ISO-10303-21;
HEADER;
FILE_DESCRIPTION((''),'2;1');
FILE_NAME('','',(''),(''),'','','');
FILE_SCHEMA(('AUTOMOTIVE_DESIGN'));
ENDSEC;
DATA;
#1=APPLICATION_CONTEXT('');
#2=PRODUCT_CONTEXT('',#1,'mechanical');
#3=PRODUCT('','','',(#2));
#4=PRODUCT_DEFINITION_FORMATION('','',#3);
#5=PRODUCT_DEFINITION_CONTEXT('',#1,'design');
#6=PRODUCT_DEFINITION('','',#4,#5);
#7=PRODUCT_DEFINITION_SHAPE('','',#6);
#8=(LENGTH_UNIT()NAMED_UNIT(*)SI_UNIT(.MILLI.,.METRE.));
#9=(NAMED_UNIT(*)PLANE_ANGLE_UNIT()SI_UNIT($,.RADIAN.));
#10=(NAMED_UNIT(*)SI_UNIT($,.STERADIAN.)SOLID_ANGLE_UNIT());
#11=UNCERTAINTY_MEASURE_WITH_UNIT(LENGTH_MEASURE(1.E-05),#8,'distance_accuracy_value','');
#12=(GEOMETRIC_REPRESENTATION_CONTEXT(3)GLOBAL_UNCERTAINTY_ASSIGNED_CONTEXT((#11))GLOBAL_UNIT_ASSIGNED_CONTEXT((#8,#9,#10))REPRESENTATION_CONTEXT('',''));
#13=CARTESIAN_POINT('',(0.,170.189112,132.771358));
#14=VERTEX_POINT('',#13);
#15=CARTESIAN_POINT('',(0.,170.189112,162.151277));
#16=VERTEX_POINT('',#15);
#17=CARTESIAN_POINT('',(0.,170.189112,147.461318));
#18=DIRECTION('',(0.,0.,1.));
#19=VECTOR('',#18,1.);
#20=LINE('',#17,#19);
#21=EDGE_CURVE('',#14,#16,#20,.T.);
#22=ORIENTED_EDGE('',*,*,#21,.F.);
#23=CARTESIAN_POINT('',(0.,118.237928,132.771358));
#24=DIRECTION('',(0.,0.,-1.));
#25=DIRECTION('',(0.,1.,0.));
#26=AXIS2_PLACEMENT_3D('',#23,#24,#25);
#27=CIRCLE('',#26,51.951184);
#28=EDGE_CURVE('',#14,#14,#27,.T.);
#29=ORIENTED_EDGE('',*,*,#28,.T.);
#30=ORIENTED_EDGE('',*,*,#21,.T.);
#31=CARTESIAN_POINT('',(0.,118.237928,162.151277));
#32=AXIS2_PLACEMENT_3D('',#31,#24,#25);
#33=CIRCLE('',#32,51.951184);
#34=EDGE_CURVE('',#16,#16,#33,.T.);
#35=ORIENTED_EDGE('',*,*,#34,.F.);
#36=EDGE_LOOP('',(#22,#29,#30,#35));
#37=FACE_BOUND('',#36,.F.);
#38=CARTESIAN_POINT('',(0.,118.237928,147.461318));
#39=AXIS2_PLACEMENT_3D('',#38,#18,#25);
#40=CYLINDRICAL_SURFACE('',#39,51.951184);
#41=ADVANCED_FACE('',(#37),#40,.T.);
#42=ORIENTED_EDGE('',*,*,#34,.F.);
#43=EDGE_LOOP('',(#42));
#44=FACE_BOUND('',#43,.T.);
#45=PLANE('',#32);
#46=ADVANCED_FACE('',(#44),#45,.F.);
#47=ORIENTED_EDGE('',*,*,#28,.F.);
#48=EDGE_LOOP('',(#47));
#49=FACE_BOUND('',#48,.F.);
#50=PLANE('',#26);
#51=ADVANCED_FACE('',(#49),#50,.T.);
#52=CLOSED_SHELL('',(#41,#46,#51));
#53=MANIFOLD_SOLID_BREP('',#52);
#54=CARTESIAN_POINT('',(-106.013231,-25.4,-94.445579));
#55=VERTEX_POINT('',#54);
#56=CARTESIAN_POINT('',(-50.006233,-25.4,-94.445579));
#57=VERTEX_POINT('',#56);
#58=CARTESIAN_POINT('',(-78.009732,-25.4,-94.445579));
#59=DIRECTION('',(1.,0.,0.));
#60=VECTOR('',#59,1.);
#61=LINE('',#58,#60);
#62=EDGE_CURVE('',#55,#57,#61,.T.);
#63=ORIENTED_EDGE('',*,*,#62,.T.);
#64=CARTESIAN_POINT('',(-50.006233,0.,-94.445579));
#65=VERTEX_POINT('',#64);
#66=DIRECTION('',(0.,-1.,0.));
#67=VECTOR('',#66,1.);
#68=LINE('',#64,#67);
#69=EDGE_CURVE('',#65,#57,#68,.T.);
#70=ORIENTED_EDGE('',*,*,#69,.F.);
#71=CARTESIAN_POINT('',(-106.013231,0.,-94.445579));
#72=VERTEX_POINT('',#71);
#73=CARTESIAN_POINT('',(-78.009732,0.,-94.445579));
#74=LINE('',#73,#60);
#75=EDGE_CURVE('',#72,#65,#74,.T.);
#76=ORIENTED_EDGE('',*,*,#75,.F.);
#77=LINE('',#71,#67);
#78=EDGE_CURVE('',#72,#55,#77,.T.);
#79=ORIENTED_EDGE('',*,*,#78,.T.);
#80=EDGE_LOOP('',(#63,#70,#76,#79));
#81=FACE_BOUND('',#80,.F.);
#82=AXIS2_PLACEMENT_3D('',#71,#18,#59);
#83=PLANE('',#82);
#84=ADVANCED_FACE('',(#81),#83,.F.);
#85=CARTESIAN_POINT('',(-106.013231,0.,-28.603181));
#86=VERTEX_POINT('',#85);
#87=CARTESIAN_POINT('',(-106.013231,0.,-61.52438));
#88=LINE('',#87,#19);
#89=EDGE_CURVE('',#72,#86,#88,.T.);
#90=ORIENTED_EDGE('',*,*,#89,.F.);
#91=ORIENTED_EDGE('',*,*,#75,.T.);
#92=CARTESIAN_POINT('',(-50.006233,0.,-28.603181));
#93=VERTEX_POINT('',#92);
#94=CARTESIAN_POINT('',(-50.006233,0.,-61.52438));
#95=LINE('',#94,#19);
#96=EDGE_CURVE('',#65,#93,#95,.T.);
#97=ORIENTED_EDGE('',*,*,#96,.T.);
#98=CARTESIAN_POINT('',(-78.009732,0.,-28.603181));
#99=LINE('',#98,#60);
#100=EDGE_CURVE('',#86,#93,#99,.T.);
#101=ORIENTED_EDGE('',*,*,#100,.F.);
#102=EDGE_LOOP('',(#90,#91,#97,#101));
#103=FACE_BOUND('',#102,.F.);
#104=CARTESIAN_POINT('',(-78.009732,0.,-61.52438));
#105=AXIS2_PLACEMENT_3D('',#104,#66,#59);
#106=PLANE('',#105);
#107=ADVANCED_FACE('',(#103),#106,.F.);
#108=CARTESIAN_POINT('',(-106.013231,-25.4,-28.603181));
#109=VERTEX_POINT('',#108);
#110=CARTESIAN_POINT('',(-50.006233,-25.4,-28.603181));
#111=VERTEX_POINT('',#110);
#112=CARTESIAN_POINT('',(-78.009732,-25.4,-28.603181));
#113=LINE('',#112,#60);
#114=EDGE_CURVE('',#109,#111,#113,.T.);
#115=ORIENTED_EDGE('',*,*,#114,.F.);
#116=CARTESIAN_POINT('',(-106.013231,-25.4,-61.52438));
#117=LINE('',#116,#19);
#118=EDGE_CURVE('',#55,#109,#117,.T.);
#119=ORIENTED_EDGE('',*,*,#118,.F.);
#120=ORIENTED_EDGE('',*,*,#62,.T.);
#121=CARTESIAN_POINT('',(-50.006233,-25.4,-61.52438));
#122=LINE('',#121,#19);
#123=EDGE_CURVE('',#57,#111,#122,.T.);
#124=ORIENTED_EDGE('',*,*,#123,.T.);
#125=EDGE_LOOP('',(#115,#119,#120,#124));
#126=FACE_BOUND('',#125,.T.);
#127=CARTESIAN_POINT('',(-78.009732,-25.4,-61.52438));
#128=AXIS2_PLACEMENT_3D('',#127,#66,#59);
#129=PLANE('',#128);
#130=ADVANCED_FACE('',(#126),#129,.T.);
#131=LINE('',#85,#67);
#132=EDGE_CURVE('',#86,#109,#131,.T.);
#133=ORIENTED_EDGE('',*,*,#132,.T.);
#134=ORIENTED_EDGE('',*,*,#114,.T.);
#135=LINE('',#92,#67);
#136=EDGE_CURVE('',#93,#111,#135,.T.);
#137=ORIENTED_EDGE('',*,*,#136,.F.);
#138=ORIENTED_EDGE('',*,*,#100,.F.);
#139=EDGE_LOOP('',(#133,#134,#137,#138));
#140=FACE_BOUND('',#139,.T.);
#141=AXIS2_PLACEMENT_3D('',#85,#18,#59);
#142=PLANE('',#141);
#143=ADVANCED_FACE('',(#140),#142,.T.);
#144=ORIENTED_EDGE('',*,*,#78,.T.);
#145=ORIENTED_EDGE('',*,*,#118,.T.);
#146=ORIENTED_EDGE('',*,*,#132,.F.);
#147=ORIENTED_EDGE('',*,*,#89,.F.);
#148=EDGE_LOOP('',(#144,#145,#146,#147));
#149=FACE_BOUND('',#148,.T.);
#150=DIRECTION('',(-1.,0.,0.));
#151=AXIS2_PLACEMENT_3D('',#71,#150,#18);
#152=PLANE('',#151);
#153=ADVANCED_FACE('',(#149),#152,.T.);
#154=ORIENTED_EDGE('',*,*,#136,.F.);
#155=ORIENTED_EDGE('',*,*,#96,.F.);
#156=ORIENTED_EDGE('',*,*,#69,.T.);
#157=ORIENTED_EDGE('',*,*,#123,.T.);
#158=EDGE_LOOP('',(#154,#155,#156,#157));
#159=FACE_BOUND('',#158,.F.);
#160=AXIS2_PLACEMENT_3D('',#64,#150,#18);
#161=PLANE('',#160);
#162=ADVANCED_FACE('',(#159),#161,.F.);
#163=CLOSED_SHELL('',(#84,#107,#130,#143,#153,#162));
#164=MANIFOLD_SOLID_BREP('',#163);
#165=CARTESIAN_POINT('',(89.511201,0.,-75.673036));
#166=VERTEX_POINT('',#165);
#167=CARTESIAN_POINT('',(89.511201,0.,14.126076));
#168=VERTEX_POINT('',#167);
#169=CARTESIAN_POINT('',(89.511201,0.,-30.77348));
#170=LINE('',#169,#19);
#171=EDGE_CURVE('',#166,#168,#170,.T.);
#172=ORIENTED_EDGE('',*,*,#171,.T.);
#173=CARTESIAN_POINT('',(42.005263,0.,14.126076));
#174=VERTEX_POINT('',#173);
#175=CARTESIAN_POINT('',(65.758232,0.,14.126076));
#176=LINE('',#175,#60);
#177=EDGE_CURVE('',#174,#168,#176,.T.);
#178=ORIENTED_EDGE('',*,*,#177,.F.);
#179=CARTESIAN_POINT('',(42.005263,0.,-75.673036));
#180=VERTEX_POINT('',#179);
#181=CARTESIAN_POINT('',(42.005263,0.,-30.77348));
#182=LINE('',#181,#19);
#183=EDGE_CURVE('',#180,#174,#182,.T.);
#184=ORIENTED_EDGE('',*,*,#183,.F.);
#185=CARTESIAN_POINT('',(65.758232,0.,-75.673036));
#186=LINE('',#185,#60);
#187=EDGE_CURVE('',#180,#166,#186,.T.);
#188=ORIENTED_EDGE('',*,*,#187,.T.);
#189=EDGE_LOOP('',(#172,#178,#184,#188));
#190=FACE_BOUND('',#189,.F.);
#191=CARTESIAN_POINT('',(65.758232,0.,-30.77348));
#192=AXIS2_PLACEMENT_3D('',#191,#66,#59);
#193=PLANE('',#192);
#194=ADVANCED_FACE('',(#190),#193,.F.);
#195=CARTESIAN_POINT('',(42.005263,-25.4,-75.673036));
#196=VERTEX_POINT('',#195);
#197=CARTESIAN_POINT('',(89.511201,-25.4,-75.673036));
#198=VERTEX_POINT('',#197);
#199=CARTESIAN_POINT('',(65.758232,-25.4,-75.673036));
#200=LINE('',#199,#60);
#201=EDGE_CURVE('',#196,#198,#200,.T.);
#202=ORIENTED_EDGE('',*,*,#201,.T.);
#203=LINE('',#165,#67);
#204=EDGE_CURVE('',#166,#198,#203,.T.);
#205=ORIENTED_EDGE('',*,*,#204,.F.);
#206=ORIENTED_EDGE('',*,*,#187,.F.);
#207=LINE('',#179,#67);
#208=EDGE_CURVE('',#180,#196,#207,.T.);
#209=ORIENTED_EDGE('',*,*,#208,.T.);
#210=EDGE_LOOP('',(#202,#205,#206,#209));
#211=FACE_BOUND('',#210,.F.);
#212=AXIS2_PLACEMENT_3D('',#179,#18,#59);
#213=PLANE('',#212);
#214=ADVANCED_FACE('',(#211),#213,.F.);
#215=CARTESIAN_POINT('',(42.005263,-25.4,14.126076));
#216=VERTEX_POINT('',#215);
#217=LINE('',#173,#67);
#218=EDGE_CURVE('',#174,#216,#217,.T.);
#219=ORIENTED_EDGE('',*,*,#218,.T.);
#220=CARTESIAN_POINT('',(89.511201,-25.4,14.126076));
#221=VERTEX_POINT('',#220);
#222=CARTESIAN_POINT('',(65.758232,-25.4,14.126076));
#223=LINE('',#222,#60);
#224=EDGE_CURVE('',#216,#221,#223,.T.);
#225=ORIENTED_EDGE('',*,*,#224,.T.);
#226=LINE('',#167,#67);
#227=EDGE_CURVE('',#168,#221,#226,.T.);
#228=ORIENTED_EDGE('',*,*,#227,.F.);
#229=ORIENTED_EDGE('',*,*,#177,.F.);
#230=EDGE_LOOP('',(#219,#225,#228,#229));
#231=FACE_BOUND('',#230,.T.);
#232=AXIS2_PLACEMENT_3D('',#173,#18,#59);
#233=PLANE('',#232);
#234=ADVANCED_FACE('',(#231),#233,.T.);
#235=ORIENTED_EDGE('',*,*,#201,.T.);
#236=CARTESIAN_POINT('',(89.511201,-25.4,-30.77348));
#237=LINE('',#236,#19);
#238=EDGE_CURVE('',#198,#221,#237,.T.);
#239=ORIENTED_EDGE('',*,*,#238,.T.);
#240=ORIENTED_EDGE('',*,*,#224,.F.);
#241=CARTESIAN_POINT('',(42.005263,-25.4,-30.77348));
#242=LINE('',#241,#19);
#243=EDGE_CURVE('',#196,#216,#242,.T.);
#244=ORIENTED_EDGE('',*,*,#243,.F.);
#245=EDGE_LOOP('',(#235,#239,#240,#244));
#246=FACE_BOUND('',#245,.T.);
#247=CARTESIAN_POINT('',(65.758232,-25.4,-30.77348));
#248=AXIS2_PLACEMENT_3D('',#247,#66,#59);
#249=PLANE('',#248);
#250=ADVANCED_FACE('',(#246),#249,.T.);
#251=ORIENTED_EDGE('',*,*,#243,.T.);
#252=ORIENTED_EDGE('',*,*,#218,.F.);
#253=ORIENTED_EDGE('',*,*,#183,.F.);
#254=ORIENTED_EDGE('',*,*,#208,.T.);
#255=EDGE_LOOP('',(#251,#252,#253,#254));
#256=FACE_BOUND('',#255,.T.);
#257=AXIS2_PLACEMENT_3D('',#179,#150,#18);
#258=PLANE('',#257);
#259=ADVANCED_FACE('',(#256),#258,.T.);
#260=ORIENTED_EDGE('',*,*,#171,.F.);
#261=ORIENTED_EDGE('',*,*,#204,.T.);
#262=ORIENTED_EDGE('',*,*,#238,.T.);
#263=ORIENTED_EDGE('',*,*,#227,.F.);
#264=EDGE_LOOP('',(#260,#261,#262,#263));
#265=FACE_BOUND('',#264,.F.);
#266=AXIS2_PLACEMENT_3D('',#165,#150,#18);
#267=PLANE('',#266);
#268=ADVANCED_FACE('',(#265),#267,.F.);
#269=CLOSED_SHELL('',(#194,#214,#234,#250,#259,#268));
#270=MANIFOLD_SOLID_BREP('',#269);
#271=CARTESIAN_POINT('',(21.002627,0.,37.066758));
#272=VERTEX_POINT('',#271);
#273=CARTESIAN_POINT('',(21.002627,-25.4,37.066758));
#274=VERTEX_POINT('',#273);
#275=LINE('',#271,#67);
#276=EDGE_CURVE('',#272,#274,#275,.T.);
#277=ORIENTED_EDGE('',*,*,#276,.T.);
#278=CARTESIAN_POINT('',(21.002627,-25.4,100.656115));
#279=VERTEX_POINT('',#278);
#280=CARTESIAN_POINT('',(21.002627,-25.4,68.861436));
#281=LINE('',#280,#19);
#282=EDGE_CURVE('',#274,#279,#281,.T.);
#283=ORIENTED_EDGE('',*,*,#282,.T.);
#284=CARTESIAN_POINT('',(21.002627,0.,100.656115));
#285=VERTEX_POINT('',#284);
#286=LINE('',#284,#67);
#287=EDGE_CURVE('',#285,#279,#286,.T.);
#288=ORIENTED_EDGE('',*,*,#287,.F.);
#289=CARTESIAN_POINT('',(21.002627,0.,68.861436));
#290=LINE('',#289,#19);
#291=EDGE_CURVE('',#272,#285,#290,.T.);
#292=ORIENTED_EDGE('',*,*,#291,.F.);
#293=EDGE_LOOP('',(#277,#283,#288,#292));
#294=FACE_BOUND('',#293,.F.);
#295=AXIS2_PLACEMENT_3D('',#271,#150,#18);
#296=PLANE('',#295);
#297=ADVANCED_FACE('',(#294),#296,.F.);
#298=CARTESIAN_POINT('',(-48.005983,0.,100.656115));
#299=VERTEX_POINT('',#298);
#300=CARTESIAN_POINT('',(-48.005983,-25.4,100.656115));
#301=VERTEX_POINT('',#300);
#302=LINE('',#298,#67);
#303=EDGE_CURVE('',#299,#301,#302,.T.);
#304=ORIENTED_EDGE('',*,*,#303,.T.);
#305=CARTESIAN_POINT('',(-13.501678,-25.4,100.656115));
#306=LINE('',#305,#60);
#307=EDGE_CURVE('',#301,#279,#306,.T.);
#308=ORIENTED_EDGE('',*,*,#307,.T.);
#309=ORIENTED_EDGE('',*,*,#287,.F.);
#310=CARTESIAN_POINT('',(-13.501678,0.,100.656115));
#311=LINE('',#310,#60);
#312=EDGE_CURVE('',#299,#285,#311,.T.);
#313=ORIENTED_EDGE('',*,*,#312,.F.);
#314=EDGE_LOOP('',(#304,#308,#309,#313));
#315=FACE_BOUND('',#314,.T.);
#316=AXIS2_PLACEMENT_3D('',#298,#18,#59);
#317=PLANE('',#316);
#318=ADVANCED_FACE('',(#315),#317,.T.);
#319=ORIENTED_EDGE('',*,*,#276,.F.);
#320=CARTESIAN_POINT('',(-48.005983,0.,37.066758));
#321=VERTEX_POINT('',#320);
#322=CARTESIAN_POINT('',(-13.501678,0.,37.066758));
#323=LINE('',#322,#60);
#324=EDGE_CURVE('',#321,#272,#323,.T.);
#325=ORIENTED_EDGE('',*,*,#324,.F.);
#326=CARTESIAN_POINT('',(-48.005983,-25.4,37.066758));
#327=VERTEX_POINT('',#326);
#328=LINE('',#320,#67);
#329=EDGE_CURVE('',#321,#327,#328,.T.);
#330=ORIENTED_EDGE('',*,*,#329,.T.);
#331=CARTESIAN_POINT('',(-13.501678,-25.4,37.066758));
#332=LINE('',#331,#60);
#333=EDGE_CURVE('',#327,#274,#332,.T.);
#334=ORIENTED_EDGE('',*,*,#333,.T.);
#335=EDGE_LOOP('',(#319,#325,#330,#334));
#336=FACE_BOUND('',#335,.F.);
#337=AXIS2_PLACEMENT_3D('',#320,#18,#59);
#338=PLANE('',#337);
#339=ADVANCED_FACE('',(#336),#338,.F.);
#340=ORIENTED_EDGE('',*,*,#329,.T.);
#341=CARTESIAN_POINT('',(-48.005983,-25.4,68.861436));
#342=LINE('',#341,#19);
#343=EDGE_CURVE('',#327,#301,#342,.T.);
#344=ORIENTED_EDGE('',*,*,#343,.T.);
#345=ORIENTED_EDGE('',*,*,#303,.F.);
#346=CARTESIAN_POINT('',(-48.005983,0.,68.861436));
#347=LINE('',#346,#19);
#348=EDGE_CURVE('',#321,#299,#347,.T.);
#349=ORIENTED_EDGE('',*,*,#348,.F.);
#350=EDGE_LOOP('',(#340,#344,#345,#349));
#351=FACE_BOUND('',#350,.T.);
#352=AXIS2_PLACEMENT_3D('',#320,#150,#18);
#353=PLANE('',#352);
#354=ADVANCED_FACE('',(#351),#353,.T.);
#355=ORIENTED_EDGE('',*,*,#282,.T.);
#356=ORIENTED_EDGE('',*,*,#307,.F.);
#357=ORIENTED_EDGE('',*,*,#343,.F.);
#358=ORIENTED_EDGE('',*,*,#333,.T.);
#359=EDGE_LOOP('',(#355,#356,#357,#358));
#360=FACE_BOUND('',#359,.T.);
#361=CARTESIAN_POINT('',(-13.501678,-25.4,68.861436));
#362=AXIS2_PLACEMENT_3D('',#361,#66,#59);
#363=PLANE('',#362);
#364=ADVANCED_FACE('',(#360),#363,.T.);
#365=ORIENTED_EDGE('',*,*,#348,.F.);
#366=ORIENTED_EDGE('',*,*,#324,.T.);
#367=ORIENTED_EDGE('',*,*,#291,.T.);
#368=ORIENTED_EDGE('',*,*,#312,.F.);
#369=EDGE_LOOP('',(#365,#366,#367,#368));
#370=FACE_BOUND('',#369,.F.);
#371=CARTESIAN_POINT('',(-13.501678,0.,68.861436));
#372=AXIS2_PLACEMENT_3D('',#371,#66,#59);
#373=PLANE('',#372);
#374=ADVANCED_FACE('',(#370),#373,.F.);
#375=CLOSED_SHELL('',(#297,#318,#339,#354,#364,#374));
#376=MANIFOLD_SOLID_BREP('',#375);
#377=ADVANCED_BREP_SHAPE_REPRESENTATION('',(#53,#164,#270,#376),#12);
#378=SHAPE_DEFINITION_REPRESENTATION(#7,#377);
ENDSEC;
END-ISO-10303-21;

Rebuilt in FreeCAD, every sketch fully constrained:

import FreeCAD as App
import Part
import Sketcher
from FreeCAD import Vector
Q = App.Units.Quantity


def add_polygon(sketch, points):
    """Adds a closed chain of lines whose ends are joined by coincident constraints."""
    first, n = sketch.GeometryCount, len(points)
    for a, b in zip(points, points[1:] + points[:1]):
        sketch.addGeometry(Part.LineSegment(App.Vector(*a, 0), App.Vector(*b, 0)), False)
    for i in range(n):
        sketch.addConstraint(Sketcher.Constraint("Coincident", first + i, 2, first + (i + 1) % n, 1))

doc = App.newDocument("Part")
body = doc.addObject("PartDesign::Body", "Body")
body.AllowCompound = True

# Sketch on XZ plane
sketch1 = body.newObject("Sketcher::SketchObject", "Sketch")
sketch1.AttachmentSupport = (doc.getObject("XZ_Plane"), [""])
sketch1.MapMode = "FlatFace"
add_polygon(sketch1, [(-48, 101), (-48, 37), (21, 37), (21, 101)])  # lines 0-3
add_polygon(sketch1, [(-106, -29), (-106, -94), (-50, -94), (-50, -29)])  # lines 4-7
add_polygon(sketch1, [(42, 14), (42, -76), (90, -76), (90, 14)])  # lines 8-11
sketch1.addConstraint(Sketcher.Constraint("Vertical", 0))
sketch1.addConstraint(Sketcher.Constraint("Horizontal", 1))
sketch1.addConstraint(Sketcher.Constraint("Vertical", 2))
sketch1.addConstraint(Sketcher.Constraint("Horizontal", 3))
sketch1.addConstraint(Sketcher.Constraint("Vertical", 4))
sketch1.addConstraint(Sketcher.Constraint("Horizontal", 5))
sketch1.addConstraint(Sketcher.Constraint("Vertical", 6))
sketch1.addConstraint(Sketcher.Constraint("Horizontal", 7))
sketch1.addConstraint(Sketcher.Constraint("Vertical", 8))
sketch1.addConstraint(Sketcher.Constraint("Horizontal", 9))
sketch1.addConstraint(Sketcher.Constraint("Vertical", 10))
sketch1.addConstraint(Sketcher.Constraint("Horizontal", 11))
sketch1.addConstraint(Sketcher.Constraint("DistanceX", 5, 1, 5, 2, Q("2.2049999 in")))
sketch1.addConstraint(Sketcher.Constraint("DistanceY", 4, 2, 4, 1, 65.842398))
sketch1.addConstraint(Sketcher.Constraint("DistanceX", 5, 2, 8, 2, Q("3.6224998 in")))
sketch1.addConstraint(Sketcher.Constraint("DistanceX", 1, 1, 1, 2, 69.008611))
sketch1.addConstraint(Sketcher.Constraint("DistanceX", -1, 1, 9, 2, 89.511201))
sketch1.addConstraint(Sketcher.Constraint("DistanceX", 9, 1, 9, 2, 47.505938))
sketch1.addConstraint(Sketcher.Constraint("DistanceY", 0, 2, 0, 1, 63.589357))
sketch1.addConstraint(Sketcher.Constraint("DistanceY", 8, 2, 8, 1, 89.799113))
sketch1.addConstraint(Sketcher.Constraint("DistanceY", 4, 2, -1, 1, 94.445579))
sketch1.addConstraint(Sketcher.Constraint("DistanceX", 4, 2, 1, 2, 127.015859))
sketch1.addConstraint(Sketcher.Constraint("DistanceY", 6, 2, 0, 2, 65.669939))
sketch1.addConstraint(Sketcher.Constraint("DistanceY", 10, 2, 1, 2, 22.940681))
pad1 = body.newObject("PartDesign::Pad", "Pad")
pad1.Profile = sketch1
pad1.Length = Q("1 in")
body2 = doc.addObject("PartDesign::Body", "Body001")

# Sketch on YZ plane
sketch2 = body2.newObject("Sketcher::SketchObject", "Sketch001")
sketch2.AttachmentSupport = (doc.getObject("YZ_Plane001"), [""])
sketch2.MapMode = "FlatFace"
add_polygon(sketch2, [(118, 162), (118, 133), (170, 133), (170, 162)])  # lines 0-3
sketch2.addGeometry(Part.LineSegment(Vector(118, 162, 0), Vector(118, 133, 0)), True)  # axis
sketch2.addConstraint(Sketcher.Constraint("Vertical", 0))
sketch2.addConstraint(Sketcher.Constraint("Horizontal", 1))
sketch2.addConstraint(Sketcher.Constraint("Vertical", 2))
sketch2.addConstraint(Sketcher.Constraint("Horizontal", 3))
sketch2.addConstraint(Sketcher.Constraint("Vertical", 4))
sketch2.addConstraint(Sketcher.Constraint("Coincident", 4, 1, 3, 2))
sketch2.addConstraint(Sketcher.Constraint("Horizontal", 1, 2, 4, 2))
sketch2.addConstraint(Sketcher.Constraint("DistanceY", 0, 2, 0, 1, 29.379919))
sketch2.addConstraint(Sketcher.Constraint("DistanceX", 1, 1, 1, 2, 51.951184))
sketch2.addConstraint(Sketcher.Constraint("DistanceY", -1, 1, 0, 2, 132.771358))
sketch2.addConstraint(Sketcher.Constraint("DistanceX", -1, 1, 1, 2, 170.189112))
revolution = body2.newObject("PartDesign::Revolution", "Revolution")
revolution.Profile = sketch2
revolution.ReferenceAxis = (sketch2, ["Axis0"])
revolution.Angle = 360

doc.recompute()
